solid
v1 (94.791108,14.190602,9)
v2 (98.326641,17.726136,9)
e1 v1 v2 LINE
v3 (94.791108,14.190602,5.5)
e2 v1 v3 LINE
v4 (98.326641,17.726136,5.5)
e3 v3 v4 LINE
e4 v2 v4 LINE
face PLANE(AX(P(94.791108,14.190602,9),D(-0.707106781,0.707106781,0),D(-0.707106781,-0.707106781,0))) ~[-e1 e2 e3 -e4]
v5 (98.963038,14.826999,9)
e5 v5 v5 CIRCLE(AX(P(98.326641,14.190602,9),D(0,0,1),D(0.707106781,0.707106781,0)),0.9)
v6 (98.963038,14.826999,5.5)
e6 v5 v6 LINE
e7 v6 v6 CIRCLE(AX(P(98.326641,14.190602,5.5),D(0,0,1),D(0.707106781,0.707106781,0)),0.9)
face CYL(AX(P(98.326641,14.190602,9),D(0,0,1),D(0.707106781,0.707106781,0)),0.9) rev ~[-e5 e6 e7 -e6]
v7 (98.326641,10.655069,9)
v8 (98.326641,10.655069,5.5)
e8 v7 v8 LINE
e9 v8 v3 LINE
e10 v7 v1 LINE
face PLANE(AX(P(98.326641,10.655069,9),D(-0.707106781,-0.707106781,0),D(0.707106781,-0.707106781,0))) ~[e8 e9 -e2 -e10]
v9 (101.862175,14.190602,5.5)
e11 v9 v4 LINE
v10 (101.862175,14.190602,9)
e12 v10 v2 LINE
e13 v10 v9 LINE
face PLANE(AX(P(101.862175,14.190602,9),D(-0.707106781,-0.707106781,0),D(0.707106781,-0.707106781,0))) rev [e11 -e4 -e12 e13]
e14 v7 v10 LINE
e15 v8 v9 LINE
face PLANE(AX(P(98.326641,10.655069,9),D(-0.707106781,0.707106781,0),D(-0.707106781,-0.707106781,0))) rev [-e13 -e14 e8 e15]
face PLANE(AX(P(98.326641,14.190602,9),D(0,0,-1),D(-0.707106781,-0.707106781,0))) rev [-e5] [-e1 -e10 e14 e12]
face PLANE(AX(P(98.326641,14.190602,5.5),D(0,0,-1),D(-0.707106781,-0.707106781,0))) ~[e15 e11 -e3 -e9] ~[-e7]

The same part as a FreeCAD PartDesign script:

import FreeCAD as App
import Part
import Sketcher

V = App.Vector


def add_polygon(sketch, points):
    """Adds a closed chain of lines whose ends are joined by coincident constraints."""
    first, n = sketch.GeometryCount, len(points)
    for a, b in zip(points, points[1:] + points[:1]):
        sketch.addGeometry(Part.LineSegment(App.Vector(*a, 0), App.Vector(*b, 0)), False)
    for i in range(n):
        sketch.addConstraint(Sketcher.Constraint("Coincident", first + i, 2, first + (i + 1) % n, 1))

doc = App.newDocument("Part")
params = doc.addObject("Spreadsheet::Sheet", "Params")
for row, (alias, value) in enumerate([
    ("sketch1_diameter", "1.8 mm"),
    ("pad1_length", "3.5 mm"),
    ("sketch2_width", "5 mm"),
    ("pad2_length", "3.5 mm"),
], start=1):
    params.set(f"A{row}", alias)
    params.set(f"B{row}", "=" + value)
    params.setAlias(f"B{row}", alias)

body = doc.addObject("PartDesign::Body", "Body")

sketch1 = body.newObject("Sketcher::SketchObject", "Sketch")
sketch1.AttachmentSupport = (doc.getObject("XY_Plane"), [""])
sketch1.MapMode = "FlatFace"
sketch1.addGeometry(Part.Circle(V(2.5, 2.5, 0), V(0, 0, 1), 0.9), False)
sketch1.addConstraint([
    Sketcher.Constraint("Diameter", 0, 1.8),
    Sketcher.Constraint("DistanceX", -1, 1, 0, 3, 2.5),
    Sketcher.Constraint("DistanceY", -1, 1, 0, 3, 2.5),
])
sketch1.setExpression("Constraints[0]", "Params.sketch1_diameter")
pad1 = body.newObject("PartDesign::Pad", "Pad")
pad1.Profile = sketch1
pad1.setExpression("Length", "Params.pad1_length")
body2 = doc.addObject("PartDesign::Body", "Body001")

sketch2 = body2.newObject("Sketcher::SketchObject", "Sketch001")
sketch2.AttachmentSupport = (doc.getObject("XY_Plane001"), [""])
sketch2.MapMode = "FlatFace"
add_polygon(sketch2, [(0, 5), (0, 0), (5, 0), (5, 5)])
sketch2.addConstraint([
    Sketcher.Constraint("Vertical", 0),
    Sketcher.Constraint("Horizontal", 1),
    Sketcher.Constraint("Vertical", 2),
    Sketcher.Constraint("Horizontal", 3),
    Sketcher.Constraint("Coincident", 0, 2, -1, 1),
    Sketcher.Constraint("Equal", 3, 0),
    Sketcher.Constraint("DistanceX", 1, 1, 1, 2, 5.0),
])
sketch2.setExpression("Constraints[10]", "Params.sketch2_width")
pad2 = body2.newObject("PartDesign::Pad", "Pad001")
pad2.Profile = sketch2
pad2.setExpression("Length", "Params.pad2_length")
doc.recompute()

boolean = body2.newObject("PartDesign::Boolean", "Boolean")
boolean.Type = "Cut"
boolean.addObjects([body])
body3 = doc.addObject("PartDesign::Body", "Body002")
doc.recompute()

body2.Placement = App.Placement(V(98.326641, 10.655069, 2), App.Rotation(V(0, 0, 1), 45))
boolean2 = body3.newObject("PartDesign::Boolean", "Boolean001")
boolean2.Type = "Fuse"
boolean2.addObjects([body2])
body4 = doc.addObject("PartDesign::Body", "Body003")
doc.recompute()

mirroring = doc.addObject("Part::Mirroring", "Mirroring")
mirroring.Source = body3
mirroring.Base = V(0, 0, 5.5)
mirroring.Normal = V(0, 0, 1)
body4.BaseFeature = mirroring
doc.recompute()
body3.Visibility = False
mirroring.Visibility = False

doc.recompute()
